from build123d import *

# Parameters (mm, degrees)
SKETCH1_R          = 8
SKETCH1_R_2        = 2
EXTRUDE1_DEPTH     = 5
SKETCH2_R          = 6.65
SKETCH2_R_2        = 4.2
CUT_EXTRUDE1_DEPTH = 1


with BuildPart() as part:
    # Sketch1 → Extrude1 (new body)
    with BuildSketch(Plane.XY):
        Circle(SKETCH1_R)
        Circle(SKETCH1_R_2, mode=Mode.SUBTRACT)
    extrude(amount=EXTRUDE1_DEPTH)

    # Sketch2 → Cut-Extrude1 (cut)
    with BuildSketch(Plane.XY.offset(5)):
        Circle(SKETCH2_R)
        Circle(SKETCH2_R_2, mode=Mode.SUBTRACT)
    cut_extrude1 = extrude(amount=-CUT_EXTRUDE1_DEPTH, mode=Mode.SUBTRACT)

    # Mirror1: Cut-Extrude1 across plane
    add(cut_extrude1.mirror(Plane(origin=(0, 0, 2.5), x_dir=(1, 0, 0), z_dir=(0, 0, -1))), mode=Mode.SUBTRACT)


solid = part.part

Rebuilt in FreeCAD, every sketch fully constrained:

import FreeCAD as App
import Part
import Sketcher

V = App.Vector

doc = App.newDocument("Part")
body = doc.addObject("PartDesign::Body", "Body")

sketch1 = body.newObject("Sketcher::SketchObject", "Sketch")
sketch1.AttachmentSupport = (doc.getObject("XY_Plane"), [""])
sketch1.MapMode = "FlatFace"
sketch1.addGeometry([
    Part.Circle(V(0, 0, 0), V(0, 0, 1), 8),
    Part.Circle(V(0, 0, 0), V(0, 0, 1), 2),
], False)
sketch1.addConstraint([
    Sketcher.Constraint("Coincident", 0, 3, -1, 1),
    Sketcher.Constraint("Coincident", 1, 3, -1, 1),
    Sketcher.Constraint("Diameter", 0, 16.0),
    Sketcher.Constraint("Diameter", 1, 4.0),
])
pad1 = body.newObject("PartDesign::Pad", "Pad")
pad1.Profile = sketch1
pad1.Length = 5

sketch2 = body.newObject("Sketcher::SketchObject", "Sketch001")
sketch2.AttachmentSupport = (doc.getObject("XY_Plane"), [""])
sketch2.MapMode = "FlatFace"
sketch2.AttachmentOffset = App.Placement(V(0, 0, 5), App.Rotation())
sketch2.addGeometry([
    Part.Circle(V(0, 0, 0), V(0, 0, 1), 6.65),
    Part.Circle(V(0, 0, 0), V(0, 0, 1), 4.2),
], False)
sketch2.addConstraint([
    Sketcher.Constraint("Coincident", 0, 3, -1, 1),
    Sketcher.Constraint("Coincident", 1, 3, -1, 1),
    Sketcher.Constraint("Diameter", 0, 13.3),
    Sketcher.Constraint("Diameter", 1, 8.4),
])
pocket1 = body.newObject("PartDesign::Pocket", "Pocket")
pocket1.Profile = sketch2
pocket1.Length = 1
doc.recompute()

datumplane = body.newObject("PartDesign::Plane", "DatumPlane")
datumplane.AttachmentSupport = (doc.getObject("XY_Plane"), [""])
datumplane.MapMode = "FlatFace"
datumplane.AttachmentOffset = App.Placement(V(0, 0, 2.5), App.Rotation())
mirrored = body.newObject("PartDesign::Mirrored", "Mirrored")
mirrored.Originals = [pocket1]
mirrored.MirrorPlane = (datumplane, [""])
body.Tip = mirrored

doc.recompute()
